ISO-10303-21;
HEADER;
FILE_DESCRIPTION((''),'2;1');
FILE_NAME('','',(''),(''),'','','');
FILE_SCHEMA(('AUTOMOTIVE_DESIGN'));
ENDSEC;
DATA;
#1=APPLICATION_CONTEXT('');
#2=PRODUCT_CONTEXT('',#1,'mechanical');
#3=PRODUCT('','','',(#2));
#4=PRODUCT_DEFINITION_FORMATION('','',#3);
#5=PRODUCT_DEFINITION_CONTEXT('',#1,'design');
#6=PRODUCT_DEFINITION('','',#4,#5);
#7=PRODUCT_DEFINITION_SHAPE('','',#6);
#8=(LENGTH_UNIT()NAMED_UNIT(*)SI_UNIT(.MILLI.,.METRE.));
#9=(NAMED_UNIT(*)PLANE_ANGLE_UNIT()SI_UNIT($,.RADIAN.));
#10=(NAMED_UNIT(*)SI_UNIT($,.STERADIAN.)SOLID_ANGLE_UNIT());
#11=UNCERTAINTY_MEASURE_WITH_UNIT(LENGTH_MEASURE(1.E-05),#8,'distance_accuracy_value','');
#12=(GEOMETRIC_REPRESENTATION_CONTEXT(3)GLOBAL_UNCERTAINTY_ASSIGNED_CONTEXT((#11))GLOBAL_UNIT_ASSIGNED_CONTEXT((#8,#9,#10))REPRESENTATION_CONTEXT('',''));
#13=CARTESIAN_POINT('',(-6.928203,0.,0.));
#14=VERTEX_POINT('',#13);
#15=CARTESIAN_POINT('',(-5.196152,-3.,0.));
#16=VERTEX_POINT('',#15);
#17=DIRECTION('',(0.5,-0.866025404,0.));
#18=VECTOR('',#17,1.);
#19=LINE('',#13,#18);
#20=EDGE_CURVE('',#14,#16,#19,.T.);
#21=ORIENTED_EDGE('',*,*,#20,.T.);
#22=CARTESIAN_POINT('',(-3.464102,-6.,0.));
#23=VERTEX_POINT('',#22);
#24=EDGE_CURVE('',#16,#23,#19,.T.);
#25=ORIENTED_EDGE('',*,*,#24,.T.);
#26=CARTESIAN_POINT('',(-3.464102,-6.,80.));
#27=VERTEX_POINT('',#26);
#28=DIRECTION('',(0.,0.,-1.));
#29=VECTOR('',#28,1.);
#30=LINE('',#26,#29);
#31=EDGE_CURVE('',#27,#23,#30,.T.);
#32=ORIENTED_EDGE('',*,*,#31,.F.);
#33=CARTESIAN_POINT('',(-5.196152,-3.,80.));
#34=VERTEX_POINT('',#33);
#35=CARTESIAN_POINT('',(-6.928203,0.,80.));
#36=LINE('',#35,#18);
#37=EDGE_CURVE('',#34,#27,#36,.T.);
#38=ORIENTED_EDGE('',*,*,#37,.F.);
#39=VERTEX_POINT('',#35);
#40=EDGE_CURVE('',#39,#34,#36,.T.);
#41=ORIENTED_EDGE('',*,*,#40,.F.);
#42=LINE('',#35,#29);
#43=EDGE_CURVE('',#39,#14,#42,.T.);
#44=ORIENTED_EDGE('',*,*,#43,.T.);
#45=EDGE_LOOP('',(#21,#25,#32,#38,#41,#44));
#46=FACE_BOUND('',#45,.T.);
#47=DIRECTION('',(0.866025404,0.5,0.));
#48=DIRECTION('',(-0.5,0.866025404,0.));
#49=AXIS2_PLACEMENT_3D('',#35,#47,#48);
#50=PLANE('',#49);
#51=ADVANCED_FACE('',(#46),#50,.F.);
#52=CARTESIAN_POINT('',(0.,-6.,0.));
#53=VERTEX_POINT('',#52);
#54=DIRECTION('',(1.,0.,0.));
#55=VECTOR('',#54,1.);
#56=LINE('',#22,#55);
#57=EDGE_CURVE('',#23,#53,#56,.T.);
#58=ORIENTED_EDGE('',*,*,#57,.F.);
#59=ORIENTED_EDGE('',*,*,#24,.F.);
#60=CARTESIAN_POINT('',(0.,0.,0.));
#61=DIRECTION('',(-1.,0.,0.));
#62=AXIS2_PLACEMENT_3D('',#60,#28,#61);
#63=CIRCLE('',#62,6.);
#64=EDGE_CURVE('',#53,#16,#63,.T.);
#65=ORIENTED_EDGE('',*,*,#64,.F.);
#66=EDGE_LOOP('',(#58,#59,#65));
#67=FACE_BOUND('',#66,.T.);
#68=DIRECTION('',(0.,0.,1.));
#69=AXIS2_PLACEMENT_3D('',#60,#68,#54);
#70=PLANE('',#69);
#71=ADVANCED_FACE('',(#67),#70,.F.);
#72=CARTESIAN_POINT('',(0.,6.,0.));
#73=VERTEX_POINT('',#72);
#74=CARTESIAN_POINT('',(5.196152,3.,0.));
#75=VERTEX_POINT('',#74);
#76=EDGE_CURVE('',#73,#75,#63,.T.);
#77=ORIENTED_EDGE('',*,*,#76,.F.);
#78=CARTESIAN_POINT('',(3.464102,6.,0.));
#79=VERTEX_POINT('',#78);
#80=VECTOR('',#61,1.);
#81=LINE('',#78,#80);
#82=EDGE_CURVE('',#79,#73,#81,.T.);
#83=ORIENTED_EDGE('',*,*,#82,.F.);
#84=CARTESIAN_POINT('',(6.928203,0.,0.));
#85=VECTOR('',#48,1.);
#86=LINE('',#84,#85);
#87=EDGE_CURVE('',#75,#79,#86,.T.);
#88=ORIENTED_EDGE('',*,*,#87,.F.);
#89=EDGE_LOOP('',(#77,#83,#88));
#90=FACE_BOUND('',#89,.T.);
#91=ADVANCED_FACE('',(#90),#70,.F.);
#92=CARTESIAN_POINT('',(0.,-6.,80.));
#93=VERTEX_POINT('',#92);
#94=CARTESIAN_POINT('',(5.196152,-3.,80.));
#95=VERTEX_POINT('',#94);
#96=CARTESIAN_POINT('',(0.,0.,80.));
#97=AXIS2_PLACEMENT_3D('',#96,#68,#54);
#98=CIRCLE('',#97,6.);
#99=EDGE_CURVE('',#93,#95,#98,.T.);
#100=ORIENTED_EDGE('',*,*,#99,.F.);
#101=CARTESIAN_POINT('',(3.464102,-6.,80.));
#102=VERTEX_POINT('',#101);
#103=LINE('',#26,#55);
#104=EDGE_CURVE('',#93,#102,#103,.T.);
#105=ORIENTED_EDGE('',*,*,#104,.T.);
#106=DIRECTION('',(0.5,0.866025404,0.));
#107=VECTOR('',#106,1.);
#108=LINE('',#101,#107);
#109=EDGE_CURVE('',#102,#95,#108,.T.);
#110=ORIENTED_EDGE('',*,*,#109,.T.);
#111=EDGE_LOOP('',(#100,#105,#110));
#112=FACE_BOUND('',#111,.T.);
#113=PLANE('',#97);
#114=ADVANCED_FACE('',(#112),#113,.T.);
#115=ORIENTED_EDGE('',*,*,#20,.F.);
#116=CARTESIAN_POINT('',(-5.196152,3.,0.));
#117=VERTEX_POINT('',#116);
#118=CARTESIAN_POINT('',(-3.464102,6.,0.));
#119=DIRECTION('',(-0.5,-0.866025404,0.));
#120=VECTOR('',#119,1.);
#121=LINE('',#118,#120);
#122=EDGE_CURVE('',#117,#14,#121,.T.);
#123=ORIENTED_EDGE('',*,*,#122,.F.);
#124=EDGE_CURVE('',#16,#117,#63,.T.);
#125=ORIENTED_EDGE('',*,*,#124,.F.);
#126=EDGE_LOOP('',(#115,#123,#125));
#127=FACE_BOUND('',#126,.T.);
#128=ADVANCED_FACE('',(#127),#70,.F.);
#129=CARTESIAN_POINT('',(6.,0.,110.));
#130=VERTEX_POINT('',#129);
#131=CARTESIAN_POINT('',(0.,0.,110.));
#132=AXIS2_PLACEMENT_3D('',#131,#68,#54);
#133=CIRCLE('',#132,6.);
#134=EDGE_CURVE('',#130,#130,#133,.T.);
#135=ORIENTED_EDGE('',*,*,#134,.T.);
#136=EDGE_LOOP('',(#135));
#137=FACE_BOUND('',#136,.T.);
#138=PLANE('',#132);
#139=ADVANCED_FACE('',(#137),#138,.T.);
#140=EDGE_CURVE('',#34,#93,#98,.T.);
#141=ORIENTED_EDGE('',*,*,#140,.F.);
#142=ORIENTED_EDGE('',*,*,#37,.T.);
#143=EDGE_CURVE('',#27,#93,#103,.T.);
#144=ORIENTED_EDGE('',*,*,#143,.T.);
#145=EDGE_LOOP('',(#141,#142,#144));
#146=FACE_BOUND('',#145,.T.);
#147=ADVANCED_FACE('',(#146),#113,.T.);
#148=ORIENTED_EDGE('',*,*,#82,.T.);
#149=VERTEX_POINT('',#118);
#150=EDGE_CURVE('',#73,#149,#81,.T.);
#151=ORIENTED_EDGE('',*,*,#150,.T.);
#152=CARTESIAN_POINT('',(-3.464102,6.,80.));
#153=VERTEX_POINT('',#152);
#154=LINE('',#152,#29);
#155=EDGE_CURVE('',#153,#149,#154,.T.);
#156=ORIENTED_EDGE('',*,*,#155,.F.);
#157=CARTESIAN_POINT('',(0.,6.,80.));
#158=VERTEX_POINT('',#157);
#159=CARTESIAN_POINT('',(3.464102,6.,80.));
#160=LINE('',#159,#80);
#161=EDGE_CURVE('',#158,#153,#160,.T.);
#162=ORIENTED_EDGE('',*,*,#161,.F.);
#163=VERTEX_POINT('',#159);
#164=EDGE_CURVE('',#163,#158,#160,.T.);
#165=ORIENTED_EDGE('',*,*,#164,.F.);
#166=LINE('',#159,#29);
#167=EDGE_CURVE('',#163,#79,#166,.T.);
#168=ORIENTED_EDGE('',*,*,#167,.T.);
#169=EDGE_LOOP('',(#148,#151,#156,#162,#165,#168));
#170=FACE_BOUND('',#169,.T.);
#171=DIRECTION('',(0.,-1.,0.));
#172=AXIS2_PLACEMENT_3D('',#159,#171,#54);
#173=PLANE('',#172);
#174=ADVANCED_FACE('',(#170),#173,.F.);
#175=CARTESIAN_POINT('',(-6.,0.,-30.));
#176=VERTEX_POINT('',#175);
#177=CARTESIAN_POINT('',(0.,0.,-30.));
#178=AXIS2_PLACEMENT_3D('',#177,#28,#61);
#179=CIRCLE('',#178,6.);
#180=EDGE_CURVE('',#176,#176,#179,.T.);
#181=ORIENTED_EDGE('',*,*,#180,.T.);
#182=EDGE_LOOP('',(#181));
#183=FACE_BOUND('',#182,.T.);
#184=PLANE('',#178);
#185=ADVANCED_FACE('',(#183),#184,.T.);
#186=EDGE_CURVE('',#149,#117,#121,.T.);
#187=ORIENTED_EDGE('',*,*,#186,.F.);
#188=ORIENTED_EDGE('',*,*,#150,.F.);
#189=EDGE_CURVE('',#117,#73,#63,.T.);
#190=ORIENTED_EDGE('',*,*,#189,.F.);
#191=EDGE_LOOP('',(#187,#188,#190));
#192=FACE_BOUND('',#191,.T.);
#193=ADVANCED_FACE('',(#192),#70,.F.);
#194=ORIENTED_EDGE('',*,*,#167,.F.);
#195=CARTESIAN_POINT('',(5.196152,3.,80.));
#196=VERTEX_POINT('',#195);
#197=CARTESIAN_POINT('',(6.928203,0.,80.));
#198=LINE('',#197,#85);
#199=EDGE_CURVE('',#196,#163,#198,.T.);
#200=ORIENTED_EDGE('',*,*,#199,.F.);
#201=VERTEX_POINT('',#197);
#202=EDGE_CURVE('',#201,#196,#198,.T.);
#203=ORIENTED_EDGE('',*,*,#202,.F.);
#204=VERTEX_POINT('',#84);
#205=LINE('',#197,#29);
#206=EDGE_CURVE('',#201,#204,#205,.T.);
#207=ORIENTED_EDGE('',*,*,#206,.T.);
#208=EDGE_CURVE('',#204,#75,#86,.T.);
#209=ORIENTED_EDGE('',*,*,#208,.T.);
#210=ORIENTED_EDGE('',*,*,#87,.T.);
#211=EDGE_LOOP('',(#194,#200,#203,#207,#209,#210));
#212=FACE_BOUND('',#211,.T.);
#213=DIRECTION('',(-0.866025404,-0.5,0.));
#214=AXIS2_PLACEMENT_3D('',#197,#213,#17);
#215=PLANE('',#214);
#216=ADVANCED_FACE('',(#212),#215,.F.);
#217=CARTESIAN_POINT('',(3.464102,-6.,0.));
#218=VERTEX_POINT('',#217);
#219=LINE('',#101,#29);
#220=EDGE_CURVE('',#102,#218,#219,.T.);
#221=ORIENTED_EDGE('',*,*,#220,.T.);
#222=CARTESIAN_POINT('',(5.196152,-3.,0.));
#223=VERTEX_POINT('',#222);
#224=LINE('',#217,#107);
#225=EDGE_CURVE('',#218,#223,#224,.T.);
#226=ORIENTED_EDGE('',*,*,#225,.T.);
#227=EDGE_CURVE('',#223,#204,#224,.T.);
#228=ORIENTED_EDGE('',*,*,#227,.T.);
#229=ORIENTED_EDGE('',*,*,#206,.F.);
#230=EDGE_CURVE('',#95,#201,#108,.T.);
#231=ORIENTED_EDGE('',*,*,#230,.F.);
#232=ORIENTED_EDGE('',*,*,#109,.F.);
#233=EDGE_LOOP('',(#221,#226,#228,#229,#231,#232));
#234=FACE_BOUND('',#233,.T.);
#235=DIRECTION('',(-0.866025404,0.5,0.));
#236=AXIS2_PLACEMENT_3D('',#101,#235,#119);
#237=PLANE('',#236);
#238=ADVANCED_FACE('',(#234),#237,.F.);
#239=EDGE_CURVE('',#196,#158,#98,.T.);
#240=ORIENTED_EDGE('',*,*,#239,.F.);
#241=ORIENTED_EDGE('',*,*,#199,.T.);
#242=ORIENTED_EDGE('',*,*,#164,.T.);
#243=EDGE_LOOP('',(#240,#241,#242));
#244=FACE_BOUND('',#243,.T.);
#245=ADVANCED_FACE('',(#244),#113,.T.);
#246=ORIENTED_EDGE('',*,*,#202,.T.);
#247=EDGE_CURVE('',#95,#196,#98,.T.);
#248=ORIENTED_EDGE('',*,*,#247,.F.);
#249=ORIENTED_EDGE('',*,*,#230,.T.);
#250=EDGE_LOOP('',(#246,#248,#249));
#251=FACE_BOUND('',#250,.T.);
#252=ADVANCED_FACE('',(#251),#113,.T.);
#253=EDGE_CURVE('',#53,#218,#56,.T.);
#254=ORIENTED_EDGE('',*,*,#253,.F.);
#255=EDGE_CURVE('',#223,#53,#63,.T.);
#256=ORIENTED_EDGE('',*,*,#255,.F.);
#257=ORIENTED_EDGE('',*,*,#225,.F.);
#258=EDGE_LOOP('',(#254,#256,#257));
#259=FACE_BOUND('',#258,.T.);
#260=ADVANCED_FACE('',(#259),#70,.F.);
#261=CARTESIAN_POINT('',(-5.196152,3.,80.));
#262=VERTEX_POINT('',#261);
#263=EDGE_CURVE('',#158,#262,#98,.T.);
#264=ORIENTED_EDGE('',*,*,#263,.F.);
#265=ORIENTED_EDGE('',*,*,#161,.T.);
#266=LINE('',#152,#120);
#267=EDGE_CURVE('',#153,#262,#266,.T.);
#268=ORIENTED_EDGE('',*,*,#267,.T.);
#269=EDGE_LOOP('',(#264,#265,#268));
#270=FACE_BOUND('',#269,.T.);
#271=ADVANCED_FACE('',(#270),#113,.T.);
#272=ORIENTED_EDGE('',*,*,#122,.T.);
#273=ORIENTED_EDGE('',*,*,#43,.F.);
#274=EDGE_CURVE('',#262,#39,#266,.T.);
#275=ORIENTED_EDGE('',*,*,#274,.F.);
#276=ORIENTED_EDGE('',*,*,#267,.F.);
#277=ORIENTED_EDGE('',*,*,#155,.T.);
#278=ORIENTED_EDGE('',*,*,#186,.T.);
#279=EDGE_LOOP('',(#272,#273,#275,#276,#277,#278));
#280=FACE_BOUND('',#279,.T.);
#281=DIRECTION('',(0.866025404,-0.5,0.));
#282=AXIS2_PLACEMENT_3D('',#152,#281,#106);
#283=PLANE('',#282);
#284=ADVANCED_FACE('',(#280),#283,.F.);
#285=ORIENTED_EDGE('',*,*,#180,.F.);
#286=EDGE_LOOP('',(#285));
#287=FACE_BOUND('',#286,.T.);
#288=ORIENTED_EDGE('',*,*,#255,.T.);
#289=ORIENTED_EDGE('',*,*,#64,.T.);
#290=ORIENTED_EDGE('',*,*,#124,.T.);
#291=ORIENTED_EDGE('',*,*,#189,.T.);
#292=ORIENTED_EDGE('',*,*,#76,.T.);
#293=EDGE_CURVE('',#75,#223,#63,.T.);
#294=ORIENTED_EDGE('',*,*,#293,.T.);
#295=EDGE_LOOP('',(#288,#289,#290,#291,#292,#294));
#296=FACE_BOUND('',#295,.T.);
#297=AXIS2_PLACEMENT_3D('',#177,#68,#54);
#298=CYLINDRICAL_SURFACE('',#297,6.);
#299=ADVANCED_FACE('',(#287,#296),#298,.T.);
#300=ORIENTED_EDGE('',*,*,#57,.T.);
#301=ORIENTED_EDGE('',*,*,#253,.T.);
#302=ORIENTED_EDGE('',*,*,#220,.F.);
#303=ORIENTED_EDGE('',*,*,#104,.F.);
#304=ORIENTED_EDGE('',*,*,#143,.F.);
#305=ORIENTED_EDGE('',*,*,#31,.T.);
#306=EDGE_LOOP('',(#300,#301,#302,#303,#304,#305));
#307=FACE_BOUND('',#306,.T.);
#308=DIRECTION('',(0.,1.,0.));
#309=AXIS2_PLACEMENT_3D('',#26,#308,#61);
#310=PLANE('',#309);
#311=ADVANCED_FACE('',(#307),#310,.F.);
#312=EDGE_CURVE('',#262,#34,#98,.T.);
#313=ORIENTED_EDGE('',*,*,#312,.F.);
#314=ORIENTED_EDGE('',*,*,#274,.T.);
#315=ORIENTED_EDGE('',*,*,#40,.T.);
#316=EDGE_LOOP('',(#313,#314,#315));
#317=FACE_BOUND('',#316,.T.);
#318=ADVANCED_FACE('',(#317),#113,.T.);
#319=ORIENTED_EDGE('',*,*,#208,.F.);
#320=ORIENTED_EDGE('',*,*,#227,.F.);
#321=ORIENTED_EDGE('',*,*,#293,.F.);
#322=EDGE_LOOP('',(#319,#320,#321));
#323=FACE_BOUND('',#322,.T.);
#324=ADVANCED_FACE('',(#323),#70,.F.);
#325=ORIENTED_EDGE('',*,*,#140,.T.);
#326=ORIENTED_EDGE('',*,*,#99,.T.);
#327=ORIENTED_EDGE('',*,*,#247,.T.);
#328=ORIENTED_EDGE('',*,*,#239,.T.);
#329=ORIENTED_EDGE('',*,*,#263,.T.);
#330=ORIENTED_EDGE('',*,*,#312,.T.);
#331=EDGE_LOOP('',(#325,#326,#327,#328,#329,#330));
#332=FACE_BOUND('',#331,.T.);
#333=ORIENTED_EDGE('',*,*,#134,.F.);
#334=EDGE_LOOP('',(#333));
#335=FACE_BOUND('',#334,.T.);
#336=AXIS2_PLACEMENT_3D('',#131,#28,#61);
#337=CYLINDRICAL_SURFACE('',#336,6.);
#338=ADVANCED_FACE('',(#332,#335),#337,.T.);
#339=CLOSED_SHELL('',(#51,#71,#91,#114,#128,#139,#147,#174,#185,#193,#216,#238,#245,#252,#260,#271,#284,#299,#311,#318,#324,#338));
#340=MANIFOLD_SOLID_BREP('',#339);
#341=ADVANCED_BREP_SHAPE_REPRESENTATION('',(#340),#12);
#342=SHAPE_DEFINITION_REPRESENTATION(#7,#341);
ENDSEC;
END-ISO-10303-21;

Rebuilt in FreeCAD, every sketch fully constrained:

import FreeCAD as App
import Part
import Sketcher
Q = App.Units.Quantity


def add_polygon(sketch, points):
    """Adds a closed chain of lines whose ends are joined by coincident constraints."""
    first, n = sketch.GeometryCount, len(points)
    for a, b in zip(points, points[1:] + points[:1]):
        sketch.addGeometry(Part.LineSegment(App.Vector(*a, 0), App.Vector(*b, 0)), False)
    for i in range(n):
        sketch.addConstraint(Sketcher.Constraint("Coincident", first + i, 2, first + (i + 1) % n, 1))

doc = App.newDocument("Part")
params = doc.addObject("Spreadsheet::Sheet", "Params")
for row, (alias, value) in enumerate([
    ("pad1_length", "80 mm"),
    ("sketch2_diameter", "12 mm"),
    ("pad2_length", "30 mm"),
    ("sketch3_diameter", "12 mm"),
    ("pad3_length", "30 mm"),
], start=1):
    params.set(f"A{row}", alias)
    params.set(f"B{row}", "=" + value)
    params.setAlias(f"B{row}", alias)

body = doc.addObject("PartDesign::Body", "Body")

sketch1 = doc.addObject("Sketcher::SketchObject", "Sketch")
body.addObject(sketch1)
sketch1.AttachmentSupport = (doc.XY_Plane, [""])
sketch1.MapMode = "FlatFace"
add_polygon(sketch1, [(3, 6), (-3, 6), (-7, 0), (-3, -6), (3, -6), (7, 0)])
sketch1.addConstraint([
    Sketcher.Constraint("Horizontal", 0),
    Sketcher.Constraint("Horizontal", 3),
    Sketcher.Constraint("Symmetric", 0, 2, 3, 2, -1, 1),
    Sketcher.Constraint("Symmetric", 1, 2, 4, 2, -1, 1),
    Sketcher.Constraint("PointOnObject", 1, 2, -1),
    Sketcher.Constraint("Parallel", 2, 5),
    Sketcher.Constraint("Vertical", 0, 2, 2, 2),
    Sketcher.Constraint("Angle", 1, Q("-120 deg")),
    Sketcher.Constraint("DistanceY", -1, 1, 0, 2, 6.0),
    Sketcher.Constraint("DistanceX", 0, 2, -1, 1, 3.464102),
])
pad1 = doc.addObject("PartDesign::Pad", "Pad")
body.addObject(pad1)
pad1.Profile = sketch1
pad1.setExpression("Length", "Params.pad1_length")

sketch2 = doc.addObject("Sketcher::SketchObject", "Sketch001")
body.addObject(sketch2)
sketch2.AttachmentSupport = (doc.XY_Plane, [""])
sketch2.MapMode = "FlatFace"
sketch2.AttachmentOffset = App.Placement(App.Vector(0, 0, 80), App.Rotation())
sketch2.addGeometry(Part.Circle(App.Vector(0, 0, 0), App.Vector(0, 0, 1), 6), False)
sketch2.addConstraint([
    Sketcher.Constraint("Coincident", 0, 3, -1, 1),
    Sketcher.Constraint("Diameter", 0, 12.0),
])
sketch2.setExpression("Constraints[1]", "Params.sketch2_diameter")
pad2 = doc.addObject("PartDesign::Pad", "Pad001")
body.addObject(pad2)
pad2.Profile = sketch2
pad2.setExpression("Length", "Params.pad2_length")

sketch3 = doc.addObject("Sketcher::SketchObject", "Sketch002")
body.addObject(sketch3)
sketch3.AttachmentSupport = (doc.XY_Plane, [""])
sketch3.MapMode = "FlatFace"
sketch3.addGeometry(Part.Circle(App.Vector(0, 0, 0), App.Vector(0, 0, 1), 6), False)
sketch3.addConstraint([
    Sketcher.Constraint("Coincident", 0, 3, -1, 1),
    Sketcher.Constraint("Diameter", 0, 12.0),
])
sketch3.setExpression("Constraints[1]", "Params.sketch3_diameter")
pad3 = doc.addObject("PartDesign::Pad", "Pad002")
body.addObject(pad3)
pad3.Profile = sketch3
pad3.setExpression("Length", "Params.pad3_length")
pad3.Reversed = True

doc.recompute()
